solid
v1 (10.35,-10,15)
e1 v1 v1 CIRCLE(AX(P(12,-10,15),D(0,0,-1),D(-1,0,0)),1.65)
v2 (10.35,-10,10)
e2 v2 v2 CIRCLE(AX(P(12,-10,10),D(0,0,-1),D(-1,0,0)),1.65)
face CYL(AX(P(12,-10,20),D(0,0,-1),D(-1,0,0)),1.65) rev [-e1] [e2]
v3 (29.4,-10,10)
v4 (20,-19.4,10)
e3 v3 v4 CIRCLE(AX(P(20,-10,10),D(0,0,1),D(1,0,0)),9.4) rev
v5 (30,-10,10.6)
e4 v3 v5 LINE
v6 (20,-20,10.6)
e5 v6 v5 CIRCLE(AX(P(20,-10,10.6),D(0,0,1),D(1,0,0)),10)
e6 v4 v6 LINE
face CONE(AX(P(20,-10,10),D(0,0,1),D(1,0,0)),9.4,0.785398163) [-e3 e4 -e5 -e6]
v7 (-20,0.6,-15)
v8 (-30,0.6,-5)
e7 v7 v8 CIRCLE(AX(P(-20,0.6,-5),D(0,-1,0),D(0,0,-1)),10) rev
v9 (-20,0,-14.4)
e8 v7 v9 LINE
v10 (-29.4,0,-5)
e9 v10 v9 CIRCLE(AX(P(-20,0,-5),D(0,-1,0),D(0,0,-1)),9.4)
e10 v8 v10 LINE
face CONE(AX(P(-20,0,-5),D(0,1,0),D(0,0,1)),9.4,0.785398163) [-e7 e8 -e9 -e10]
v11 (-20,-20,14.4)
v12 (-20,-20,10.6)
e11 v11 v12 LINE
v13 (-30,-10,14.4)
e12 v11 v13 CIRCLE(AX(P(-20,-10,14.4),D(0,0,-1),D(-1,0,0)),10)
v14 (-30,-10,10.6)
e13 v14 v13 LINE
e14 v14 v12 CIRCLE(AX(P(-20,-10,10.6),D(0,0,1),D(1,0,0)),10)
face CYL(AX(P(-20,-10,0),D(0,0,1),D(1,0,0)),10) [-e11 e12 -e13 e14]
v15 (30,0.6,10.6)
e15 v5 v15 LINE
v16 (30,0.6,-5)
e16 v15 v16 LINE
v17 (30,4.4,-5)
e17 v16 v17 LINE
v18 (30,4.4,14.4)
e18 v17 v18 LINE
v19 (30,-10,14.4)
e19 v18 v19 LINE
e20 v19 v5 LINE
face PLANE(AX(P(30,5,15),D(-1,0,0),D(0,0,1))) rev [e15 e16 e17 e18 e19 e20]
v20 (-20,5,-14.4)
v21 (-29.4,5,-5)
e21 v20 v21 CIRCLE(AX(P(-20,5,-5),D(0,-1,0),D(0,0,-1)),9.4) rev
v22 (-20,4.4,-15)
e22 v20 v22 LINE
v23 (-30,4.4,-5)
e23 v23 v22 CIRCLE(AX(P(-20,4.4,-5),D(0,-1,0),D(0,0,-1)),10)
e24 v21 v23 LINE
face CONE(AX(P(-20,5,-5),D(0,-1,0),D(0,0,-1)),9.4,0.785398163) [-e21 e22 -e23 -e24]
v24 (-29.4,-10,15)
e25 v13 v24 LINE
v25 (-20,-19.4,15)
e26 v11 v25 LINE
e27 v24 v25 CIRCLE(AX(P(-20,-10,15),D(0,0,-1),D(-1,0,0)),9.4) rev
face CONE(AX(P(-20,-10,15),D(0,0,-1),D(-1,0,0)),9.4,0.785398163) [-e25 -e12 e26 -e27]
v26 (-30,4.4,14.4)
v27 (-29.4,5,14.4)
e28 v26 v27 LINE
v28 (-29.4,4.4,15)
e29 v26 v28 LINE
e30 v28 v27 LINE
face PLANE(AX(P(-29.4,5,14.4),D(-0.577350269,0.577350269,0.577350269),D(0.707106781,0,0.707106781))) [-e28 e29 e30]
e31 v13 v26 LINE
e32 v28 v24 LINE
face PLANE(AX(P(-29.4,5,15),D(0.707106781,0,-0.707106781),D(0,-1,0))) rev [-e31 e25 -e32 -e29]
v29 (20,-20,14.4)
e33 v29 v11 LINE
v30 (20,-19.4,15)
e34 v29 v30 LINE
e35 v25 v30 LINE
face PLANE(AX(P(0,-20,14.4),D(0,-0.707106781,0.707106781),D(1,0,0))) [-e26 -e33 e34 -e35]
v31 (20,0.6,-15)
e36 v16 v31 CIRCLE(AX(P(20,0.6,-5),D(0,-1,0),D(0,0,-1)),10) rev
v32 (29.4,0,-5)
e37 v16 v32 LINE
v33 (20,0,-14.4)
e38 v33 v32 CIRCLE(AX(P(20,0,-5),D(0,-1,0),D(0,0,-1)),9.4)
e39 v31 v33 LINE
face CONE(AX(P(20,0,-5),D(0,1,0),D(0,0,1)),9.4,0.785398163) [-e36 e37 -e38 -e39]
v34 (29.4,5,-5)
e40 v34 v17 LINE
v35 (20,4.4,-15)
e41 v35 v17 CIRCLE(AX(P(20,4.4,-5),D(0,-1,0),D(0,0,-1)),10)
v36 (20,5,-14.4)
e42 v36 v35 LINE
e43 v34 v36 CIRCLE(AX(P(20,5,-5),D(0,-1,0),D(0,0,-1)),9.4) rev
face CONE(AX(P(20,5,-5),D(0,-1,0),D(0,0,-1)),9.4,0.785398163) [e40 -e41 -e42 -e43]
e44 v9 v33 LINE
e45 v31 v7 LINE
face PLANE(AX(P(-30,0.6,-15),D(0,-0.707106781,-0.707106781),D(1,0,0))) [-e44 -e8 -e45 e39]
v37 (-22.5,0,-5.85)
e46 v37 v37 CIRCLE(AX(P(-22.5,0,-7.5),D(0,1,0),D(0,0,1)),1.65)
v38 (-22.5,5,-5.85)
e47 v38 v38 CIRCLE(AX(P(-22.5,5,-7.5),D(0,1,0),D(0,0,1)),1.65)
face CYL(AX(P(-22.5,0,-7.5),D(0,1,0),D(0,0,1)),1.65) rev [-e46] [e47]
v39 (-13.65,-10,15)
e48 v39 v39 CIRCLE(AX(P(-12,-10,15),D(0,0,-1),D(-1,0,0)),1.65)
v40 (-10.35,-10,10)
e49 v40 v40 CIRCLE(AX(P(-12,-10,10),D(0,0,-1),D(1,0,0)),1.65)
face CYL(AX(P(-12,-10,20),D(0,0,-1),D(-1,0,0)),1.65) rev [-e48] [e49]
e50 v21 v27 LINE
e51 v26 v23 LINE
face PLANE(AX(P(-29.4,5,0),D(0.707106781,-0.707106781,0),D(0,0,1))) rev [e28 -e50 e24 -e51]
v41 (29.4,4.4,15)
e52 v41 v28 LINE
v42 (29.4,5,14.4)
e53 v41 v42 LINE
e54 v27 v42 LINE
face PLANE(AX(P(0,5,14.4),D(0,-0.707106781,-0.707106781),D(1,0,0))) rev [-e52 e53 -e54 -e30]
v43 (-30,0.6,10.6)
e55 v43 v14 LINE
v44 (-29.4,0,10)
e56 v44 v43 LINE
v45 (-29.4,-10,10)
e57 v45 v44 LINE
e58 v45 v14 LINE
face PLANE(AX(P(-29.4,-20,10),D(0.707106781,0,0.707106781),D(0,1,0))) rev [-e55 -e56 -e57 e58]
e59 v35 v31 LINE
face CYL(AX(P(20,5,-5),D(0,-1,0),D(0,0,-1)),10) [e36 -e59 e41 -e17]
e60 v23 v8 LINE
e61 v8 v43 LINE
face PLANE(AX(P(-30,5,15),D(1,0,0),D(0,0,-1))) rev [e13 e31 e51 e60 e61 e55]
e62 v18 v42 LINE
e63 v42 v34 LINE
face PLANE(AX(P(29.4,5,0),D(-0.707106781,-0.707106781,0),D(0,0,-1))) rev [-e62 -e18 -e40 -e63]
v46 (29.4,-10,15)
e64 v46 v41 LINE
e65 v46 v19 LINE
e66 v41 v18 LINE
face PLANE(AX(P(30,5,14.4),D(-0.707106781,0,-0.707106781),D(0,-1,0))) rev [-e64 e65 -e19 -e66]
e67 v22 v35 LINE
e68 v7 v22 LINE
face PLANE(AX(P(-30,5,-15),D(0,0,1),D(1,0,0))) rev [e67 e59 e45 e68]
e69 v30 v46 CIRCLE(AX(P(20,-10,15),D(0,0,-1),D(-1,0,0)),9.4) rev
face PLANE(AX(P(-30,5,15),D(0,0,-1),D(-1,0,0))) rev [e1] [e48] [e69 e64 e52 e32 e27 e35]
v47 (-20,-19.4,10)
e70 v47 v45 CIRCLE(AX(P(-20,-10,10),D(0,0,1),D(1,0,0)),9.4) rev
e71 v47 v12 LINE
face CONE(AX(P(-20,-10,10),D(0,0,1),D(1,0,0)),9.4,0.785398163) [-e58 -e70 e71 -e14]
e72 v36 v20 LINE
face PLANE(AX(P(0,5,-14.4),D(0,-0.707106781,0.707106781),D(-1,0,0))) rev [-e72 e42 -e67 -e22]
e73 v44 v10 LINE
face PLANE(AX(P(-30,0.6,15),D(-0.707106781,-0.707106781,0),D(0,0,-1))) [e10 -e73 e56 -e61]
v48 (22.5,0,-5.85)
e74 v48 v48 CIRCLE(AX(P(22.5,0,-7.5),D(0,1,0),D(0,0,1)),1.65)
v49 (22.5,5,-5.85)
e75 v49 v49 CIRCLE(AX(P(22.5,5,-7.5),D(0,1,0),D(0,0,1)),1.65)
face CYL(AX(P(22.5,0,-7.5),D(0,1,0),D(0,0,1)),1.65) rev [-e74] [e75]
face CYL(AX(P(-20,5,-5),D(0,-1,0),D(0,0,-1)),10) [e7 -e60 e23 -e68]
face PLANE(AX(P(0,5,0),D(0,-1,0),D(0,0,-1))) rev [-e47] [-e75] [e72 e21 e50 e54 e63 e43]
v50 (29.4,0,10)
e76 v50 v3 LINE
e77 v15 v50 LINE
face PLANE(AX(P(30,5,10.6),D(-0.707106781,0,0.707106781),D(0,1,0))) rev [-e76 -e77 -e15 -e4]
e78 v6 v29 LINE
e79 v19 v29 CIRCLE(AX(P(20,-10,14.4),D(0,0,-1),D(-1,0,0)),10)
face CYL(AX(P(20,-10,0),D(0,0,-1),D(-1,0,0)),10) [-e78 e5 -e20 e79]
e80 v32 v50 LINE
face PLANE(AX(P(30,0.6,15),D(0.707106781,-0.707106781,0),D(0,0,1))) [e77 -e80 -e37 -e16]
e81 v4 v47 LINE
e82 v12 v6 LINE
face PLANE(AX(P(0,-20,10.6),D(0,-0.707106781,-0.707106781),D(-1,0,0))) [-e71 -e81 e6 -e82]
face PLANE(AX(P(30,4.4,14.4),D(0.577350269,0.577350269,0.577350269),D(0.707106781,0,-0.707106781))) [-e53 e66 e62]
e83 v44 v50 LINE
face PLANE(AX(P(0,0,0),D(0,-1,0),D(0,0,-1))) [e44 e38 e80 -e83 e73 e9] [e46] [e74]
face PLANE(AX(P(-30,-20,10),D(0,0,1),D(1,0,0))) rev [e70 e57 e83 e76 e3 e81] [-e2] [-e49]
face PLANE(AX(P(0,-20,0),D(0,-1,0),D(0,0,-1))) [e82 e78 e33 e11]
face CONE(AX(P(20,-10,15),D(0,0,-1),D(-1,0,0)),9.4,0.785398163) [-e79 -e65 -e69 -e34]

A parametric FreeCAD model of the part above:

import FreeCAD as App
import Part
import Sketcher

V = App.Vector


def edges_at(feature, points):
    """Names of the edges that pass closest to the given points."""
    edges = feature.Shape.Edges
    near = lambda p: min(range(len(edges)), key=lambda i: edges[i].distToShape(Part.Vertex(*p))[0])
    return sorted({f"Edge{near(p) + 1}" for p in points})


def add_polygon(sketch, points):
    """Adds a closed chain of lines whose ends are joined by coincident constraints."""
    first, n = sketch.GeometryCount, len(points)
    for a, b in zip(points, points[1:] + points[:1]):
        sketch.addGeometry(Part.LineSegment(App.Vector(*a, 0), App.Vector(*b, 0)), False)
    for i in range(n):
        sketch.addConstraint(Sketcher.Constraint("Coincident", first + i, 2, first + (i + 1) % n, 1))

doc = App.newDocument("Part")
body = doc.addObject("PartDesign::Body", "Body")

# Sketch on XZ plane
sketch1 = doc.addObject("Sketcher::SketchObject", "Sketch")
body.addObject(sketch1)
sketch1.AttachmentSupport = (doc.XZ_Plane, [""])
sketch1.MapMode = "FlatFace"
add_polygon(sketch1, [(-30, -15), (-30, 15), (30, 15), (30, -15)])  # lines 0-3
sketch1.addConstraint(Sketcher.Constraint("Vertical", 0))
sketch1.addConstraint(Sketcher.Constraint("Horizontal", 1))
sketch1.addConstraint(Sketcher.Constraint("Vertical", 2))
sketch1.addConstraint(Sketcher.Constraint("Horizontal", 3))
sketch1.addConstraint(Sketcher.Constraint("Symmetric", 0, 2, 2, 2, -1, 1))
sketch1.addConstraint(Sketcher.Constraint("DistanceX", 1, 1, 1, 2, 60.0))
sketch1.addConstraint(Sketcher.Constraint("DistanceY", 0, 1, 0, 2, 30.0))
pad1 = doc.addObject("PartDesign::Pad", "Pad")
body.addObject(pad1)
pad1.Profile = sketch1
pad1.Length = 5
pad1.Reversed = True

# Sketch on XZ plane
sketch2 = doc.addObject("Sketcher::SketchObject", "Sketch001")
body.addObject(sketch2)
sketch2.AttachmentSupport = (doc.XZ_Plane, [""])
sketch2.MapMode = "FlatFace"
sketch2.AttachmentOffset = App.Placement(V(0, 0, -5), App.Rotation())
sketch2.addGeometry(Part.Circle(V(-22.5, -7.5, 0), V(0, 0, 1), 1.65), False)
sketch2.addGeometry(Part.Circle(V(22.5, -7.5, 0), V(0, 0, 1), 1.65), False)
sketch2.addConstraint(Sketcher.Constraint("Equal", 0, 1))
sketch2.addConstraint(Sketcher.Constraint("Symmetric", 0, 3, 1, 3, -2))
sketch2.addConstraint(Sketcher.Constraint("Diameter", 0, 3.3))
sketch2.addConstraint(Sketcher.Constraint("DistanceX", 0, 3, 1, 3, 45.0))
sketch2.addConstraint(Sketcher.Constraint("DistanceY", 0, 3, -1, 1, 7.5))
pocket1 = doc.addObject("PartDesign::Pocket", "Pocket")
body.addObject(pocket1)
pocket1.Profile = sketch2
pocket1.Type = "ThroughAll"
pocket1.Reversed = True

# Sketch on XZ plane
sketch3 = doc.addObject("Sketcher::SketchObject", "Sketch002")
body.addObject(sketch3)
sketch3.AttachmentSupport = (doc.XZ_Plane, [""])
sketch3.MapMode = "FlatFace"
add_polygon(sketch3, [(-30, 15), (-30, 10), (30, 10), (30, 15)])  # lines 0-3
sketch3.addConstraint(Sketcher.Constraint("Vertical", 0))
sketch3.addConstraint(Sketcher.Constraint("Horizontal", 1))
sketch3.addConstraint(Sketcher.Constraint("Vertical", 2))
sketch3.addConstraint(Sketcher.Constraint("Horizontal", 3))
sketch3.addConstraint(Sketcher.Constraint("DistanceX", 1, 1, 1, 2, 60.0))
sketch3.addConstraint(Sketcher.Constraint("DistanceY", 0, 2, 0, 1, 5.0))
sketch3.addConstraint(Sketcher.Constraint("DistanceX", 0, 2, -1, 1, 30.0))
sketch3.addConstraint(Sketcher.Constraint("DistanceY", -1, 1, 0, 2, 10.0))
pad2 = doc.addObject("PartDesign::Pad", "Pad001")
body.addObject(pad2)
pad2.Profile = sketch3
pad2.Length = 20

# Sketch on XY plane
sketch4 = doc.addObject("Sketcher::SketchObject", "Sketch003")
body.addObject(sketch4)
sketch4.AttachmentSupport = (doc.XY_Plane, [""])
sketch4.MapMode = "FlatFace"
sketch4.AttachmentOffset = App.Placement(V(0, 0, 10), App.Rotation())
sketch4.addGeometry(Part.Circle(V(12, -10, 0), V(0, 0, 1), 1.65), False)
sketch4.addGeometry(Part.Circle(V(-12, -10, 0), V(0, 0, 1), 1.65), False)
sketch4.addConstraint(Sketcher.Constraint("Equal", 0, 1))
sketch4.addConstraint(Sketcher.Constraint("Symmetric", 0, 3, 1, 3, -2))
sketch4.addConstraint(Sketcher.Constraint("Diameter", 0, 3.3))
sketch4.addConstraint(Sketcher.Constraint("DistanceX", -1, 1, 0, 3, 12.0))
sketch4.addConstraint(Sketcher.Constraint("DistanceY", 0, 3, -1, 1, 10.0))
pocket2 = doc.addObject("PartDesign::Pocket", "Pocket001")
body.addObject(pocket2)
pocket2.Profile = sketch4
pocket2.Length = 10
pocket2.Reversed = True
doc.recompute()

fillet = doc.addObject("PartDesign::Fillet", "Fillet")
body.addObject(fillet)
fillet.Base = (pocket2, edges_at(pocket2, [
    (-30, -20, 12.5),
    (30, -20, 12.5),
    (-30, 2.5, -15),
    (30, 2.5, -15),
]))
fillet.Radius = 10
doc.recompute()

chamfer = doc.addObject("PartDesign::Chamfer", "Chamfer")
body.addObject(chamfer)
chamfer.Base = (fillet, edges_at(fillet, [
    (0, 5, 15),
    (30, 0, 2.5),
    (0, -20, 10),
    (0, -20, 15),
    (30, -5, 10),
    (-30, -5, 10),
    (27.071, -17.071, 10),
    (-27.071, -17.071, 10),
    (30, 5, 5),
    (-30, 0, 2.5),
    (-30, 5, 5),
    (27.071, -17.071, 15),
    (-27.071, -17.071, 15),
    (0, 0, -15),
    (27.071, 0, -12.071),
    (-27.071, 0, -12.071),
    (0, 5, -15),
    (27.071, 5, -12.071),
    (-27.071, 5, -12.071),
    (30, -2.5, 15),
    (-30, -2.5, 15),
]))
chamfer.Size = 0.6

doc.recompute()
